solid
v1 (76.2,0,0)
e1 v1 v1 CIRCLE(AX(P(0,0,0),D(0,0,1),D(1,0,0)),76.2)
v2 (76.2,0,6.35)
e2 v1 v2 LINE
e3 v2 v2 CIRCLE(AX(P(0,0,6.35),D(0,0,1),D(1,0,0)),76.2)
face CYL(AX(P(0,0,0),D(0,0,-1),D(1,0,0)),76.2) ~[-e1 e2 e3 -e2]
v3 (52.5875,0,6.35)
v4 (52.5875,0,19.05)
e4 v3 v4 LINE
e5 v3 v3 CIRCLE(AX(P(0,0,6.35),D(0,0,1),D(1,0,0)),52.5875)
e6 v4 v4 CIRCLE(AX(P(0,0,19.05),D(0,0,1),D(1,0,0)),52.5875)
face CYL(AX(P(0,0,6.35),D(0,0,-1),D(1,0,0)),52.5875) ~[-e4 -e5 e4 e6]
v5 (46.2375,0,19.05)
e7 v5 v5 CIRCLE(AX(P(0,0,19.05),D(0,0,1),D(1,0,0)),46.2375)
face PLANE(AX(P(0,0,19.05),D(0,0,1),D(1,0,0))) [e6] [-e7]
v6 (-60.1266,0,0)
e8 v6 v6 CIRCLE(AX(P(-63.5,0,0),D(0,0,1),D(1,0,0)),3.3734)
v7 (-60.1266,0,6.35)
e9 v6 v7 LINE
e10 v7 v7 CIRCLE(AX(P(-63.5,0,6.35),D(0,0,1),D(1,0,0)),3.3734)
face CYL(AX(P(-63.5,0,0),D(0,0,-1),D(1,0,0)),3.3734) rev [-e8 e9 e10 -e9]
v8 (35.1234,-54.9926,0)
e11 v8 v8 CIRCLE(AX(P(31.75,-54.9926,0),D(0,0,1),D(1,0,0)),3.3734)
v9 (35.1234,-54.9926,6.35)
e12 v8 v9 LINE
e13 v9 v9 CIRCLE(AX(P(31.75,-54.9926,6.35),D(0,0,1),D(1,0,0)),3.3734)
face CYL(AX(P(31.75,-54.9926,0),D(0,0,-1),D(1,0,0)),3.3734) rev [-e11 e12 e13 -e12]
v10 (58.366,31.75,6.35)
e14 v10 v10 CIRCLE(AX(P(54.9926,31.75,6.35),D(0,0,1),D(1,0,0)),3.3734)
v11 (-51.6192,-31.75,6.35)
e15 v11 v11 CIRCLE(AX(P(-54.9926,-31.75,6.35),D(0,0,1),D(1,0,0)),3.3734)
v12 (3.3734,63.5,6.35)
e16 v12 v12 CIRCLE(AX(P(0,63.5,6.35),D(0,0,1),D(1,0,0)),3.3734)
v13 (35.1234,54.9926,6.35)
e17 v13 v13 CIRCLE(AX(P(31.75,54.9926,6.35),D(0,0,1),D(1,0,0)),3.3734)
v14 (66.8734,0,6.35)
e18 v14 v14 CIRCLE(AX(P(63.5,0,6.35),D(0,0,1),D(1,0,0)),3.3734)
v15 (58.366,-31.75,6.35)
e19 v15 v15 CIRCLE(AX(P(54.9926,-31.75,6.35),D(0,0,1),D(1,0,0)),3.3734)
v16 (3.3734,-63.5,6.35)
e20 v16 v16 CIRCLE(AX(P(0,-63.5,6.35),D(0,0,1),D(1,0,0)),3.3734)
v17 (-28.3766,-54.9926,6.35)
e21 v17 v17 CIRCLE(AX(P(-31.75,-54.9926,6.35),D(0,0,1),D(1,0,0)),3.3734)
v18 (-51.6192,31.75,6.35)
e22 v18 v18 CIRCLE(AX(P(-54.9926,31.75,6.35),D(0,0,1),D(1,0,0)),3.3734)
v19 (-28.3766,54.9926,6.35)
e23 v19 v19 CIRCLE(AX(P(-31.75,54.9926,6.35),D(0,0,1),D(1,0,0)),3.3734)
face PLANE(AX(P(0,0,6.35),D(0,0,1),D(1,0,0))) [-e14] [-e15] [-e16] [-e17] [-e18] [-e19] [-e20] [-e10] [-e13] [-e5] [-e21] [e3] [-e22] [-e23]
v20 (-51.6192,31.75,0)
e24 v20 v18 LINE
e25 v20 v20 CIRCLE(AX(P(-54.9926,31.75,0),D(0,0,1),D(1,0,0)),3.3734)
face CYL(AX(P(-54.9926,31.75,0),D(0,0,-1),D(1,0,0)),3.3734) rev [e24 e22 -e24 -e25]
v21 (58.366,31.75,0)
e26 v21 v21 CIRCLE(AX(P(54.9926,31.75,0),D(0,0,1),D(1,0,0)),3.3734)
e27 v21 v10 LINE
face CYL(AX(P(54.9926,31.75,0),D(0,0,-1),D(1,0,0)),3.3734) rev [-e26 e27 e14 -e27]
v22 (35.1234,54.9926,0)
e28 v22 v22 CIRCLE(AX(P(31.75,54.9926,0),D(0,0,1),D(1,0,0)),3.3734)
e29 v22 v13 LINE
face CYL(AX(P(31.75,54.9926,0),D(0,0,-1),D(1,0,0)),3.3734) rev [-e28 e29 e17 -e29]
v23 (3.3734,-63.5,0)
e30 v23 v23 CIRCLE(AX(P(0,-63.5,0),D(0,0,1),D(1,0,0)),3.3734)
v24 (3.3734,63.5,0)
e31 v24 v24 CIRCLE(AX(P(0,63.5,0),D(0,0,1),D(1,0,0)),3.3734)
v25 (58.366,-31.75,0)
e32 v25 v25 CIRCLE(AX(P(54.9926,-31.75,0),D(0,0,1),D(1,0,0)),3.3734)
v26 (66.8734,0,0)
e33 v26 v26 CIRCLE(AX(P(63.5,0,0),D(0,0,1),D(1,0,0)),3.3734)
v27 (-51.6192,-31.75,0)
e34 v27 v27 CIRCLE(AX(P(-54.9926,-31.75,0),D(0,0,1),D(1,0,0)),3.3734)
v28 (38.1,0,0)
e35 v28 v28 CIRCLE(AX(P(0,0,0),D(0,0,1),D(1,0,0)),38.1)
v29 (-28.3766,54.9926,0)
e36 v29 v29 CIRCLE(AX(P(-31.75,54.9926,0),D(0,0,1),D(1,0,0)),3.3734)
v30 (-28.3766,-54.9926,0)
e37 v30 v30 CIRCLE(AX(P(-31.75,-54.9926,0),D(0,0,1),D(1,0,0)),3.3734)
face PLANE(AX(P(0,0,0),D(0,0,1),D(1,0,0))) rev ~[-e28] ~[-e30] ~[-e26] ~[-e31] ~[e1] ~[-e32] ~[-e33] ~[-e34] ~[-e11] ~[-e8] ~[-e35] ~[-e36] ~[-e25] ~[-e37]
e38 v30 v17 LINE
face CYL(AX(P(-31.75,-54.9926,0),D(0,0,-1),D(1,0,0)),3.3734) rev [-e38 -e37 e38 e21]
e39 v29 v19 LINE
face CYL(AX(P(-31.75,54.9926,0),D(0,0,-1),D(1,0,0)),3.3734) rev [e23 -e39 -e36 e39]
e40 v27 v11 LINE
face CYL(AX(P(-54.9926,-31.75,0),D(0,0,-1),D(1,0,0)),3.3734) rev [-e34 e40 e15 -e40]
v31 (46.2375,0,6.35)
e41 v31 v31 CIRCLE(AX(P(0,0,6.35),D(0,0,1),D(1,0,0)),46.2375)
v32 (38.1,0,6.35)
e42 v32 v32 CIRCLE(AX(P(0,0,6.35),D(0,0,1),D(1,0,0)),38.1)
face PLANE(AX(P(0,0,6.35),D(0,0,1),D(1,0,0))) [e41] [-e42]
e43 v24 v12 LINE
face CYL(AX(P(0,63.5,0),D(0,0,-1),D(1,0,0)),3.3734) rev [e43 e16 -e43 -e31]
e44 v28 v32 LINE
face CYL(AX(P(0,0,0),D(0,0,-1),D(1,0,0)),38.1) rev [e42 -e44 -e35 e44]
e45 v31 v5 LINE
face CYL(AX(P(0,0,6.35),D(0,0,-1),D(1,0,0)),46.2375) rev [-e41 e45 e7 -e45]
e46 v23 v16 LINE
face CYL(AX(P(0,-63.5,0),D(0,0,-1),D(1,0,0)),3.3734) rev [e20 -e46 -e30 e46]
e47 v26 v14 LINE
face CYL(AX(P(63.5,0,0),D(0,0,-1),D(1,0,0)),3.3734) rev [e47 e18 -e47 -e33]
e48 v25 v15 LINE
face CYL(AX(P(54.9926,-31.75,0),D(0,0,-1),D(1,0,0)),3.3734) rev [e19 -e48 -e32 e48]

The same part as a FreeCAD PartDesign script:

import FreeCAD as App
import Part
import Sketcher
Q = App.Units.Quantity

doc = App.newDocument("Part")
body = doc.addObject("PartDesign::Body", "Body")

# Sketch on XY plane
sketch1 = doc.addObject("Sketcher::SketchObject", "Sketch")
body.addObject(sketch1)
sketch1.AttachmentSupport = (doc.XY_Plane, [""])
sketch1.MapMode = "FlatFace"
sketch1.addGeometry(Part.Circle(App.Vector(0, 0, 0), App.Vector(0, 0, 1), 76.2), False)
sketch1.addGeometry(Part.Circle(App.Vector(-31.75, -54.9926, 0), App.Vector(0, 0, 1), 3.3734), False)
sketch1.addGeometry(Part.Circle(App.Vector(-54.9926, -31.75, 0), App.Vector(0, 0, 1), 3.3734), False)
sketch1.addGeometry(Part.Circle(App.Vector(0, -63.5, 0), App.Vector(0, 0, 1), 3.3734), False)
sketch1.addGeometry(Part.Circle(App.Vector(31.75, -54.9926, 0), App.Vector(0, 0, 1), 3.3734), False)
sketch1.addGeometry(Part.Circle(App.Vector(54.9926, -31.75, 0), App.Vector(0, 0, 1), 3.3734), False)
sketch1.addGeometry(Part.Circle(App.Vector(-63.5, 0, 0), App.Vector(0, 0, 1), 3.3734), False)
sketch1.addGeometry(Part.Circle(App.Vector(-54.9926, 31.75, 0), App.Vector(0, 0, 1), 3.3734), False)
sketch1.addGeometry(Part.Circle(App.Vector(-31.75, 54.9926, 0), App.Vector(0, 0, 1), 3.3734), False)
sketch1.addGeometry(Part.Circle(App.Vector(0, 0, 0), App.Vector(0, 0, 1), 38.1), False)
sketch1.addGeometry(Part.Circle(App.Vector(63.5, 0, 0), App.Vector(0, 0, 1), 3.3734), False)
sketch1.addGeometry(Part.Circle(App.Vector(54.9926, 31.75, 0), App.Vector(0, 0, 1), 3.3734), False)
sketch1.addGeometry(Part.Circle(App.Vector(31.75, 54.9926, 0), App.Vector(0, 0, 1), 3.3734), False)
sketch1.addGeometry(Part.Circle(App.Vector(0, 63.5, 0), App.Vector(0, 0, 1), 3.3734), False)
sketch1.addConstraint(Sketcher.Constraint("Coincident", 0, 3, -1, 1))
sketch1.addConstraint(Sketcher.Constraint("Coincident", 9, 3, -1, 1))
sketch1.addConstraint(Sketcher.Constraint("Equal", 1, 2))
sketch1.addConstraint(Sketcher.Constraint("Equal", 2, 3))
sketch1.addConstraint(Sketcher.Constraint("Equal", 3, 4))
sketch1.addConstraint(Sketcher.Constraint("Equal", 4, 5))
sketch1.addConstraint(Sketcher.Constraint("Equal", 5, 6))
sketch1.addConstraint(Sketcher.Constraint("Equal", 6, 7))
sketch1.addConstraint(Sketcher.Constraint("Equal", 7, 8))
sketch1.addConstraint(Sketcher.Constraint("Equal", 8, 10))
sketch1.addConstraint(Sketcher.Constraint("Equal", 10, 11))
sketch1.addConstraint(Sketcher.Constraint("Equal", 11, 12))
sketch1.addConstraint(Sketcher.Constraint("Equal", 12, 13))
sketch1.addConstraint(Sketcher.Constraint("Symmetric", 5, 3, 7, 3, -1, 1))
sketch1.addConstraint(Sketcher.Constraint("Symmetric", 4, 3, 8, 3, -1, 1))
sketch1.addConstraint(Sketcher.Constraint("Symmetric", 6, 3, 10, 3, -1, 1))
sketch1.addConstraint(Sketcher.Constraint("Symmetric", 2, 3, 11, 3, -1, 1))
sketch1.addConstraint(Sketcher.Constraint("Symmetric", 1, 3, 12, 3, -1, 1))
sketch1.addConstraint(Sketcher.Constraint("Symmetric", 3, 3, 13, 3, -1, 1))
sketch1.addConstraint(Sketcher.Constraint("Symmetric", 1, 3, 4, 3, -2))
sketch1.addConstraint(Sketcher.Constraint("Symmetric", 2, 3, 5, 3, -2))
sketch1.addConstraint(Sketcher.Constraint("PointOnObject", 3, 3, -2))
sketch1.addConstraint(Sketcher.Constraint("PointOnObject", 6, 3, -1))
sketch1.addConstraint(Sketcher.Constraint("Diameter", 0, Q("6 in")))
sketch1.addConstraint(Sketcher.Constraint("Diameter", 9, Q("3 in")))
sketch1.addConstraint(Sketcher.Constraint("Diameter", 1, Q("0.265622 in")))
sketch1.addConstraint(Sketcher.Constraint("DistanceY", 3, 3, -1, 1, Q("2.5 in")))
sketch1.addConstraint(Sketcher.Constraint("DistanceX", 6, 3, -1, 1, Q("2.5 in")))
sketch1.addConstraint(Sketcher.Constraint("DistanceX", 1, 3, 4, 3, Q("2.5 in")))
sketch1.addConstraint(Sketcher.Constraint("DistanceY", 2, 3, 7, 3, Q("2.5 in")))
sketch1.addConstraint(Sketcher.Constraint("DistanceY", 1, 3, -1, 1, 54.9926))
sketch1.addConstraint(Sketcher.Constraint("DistanceX", 2, 3, -1, 1, 54.9926))
pad1 = doc.addObject("PartDesign::Pad", "Pad")
body.addObject(pad1)
pad1.Profile = sketch1
pad1.Length = Q("0.25 in")

# Sketch on XY plane
sketch2 = doc.addObject("Sketcher::SketchObject", "Sketch001")
body.addObject(sketch2)
sketch2.AttachmentSupport = (doc.XY_Plane, [""])
sketch2.MapMode = "FlatFace"
sketch2.AttachmentOffset = App.Placement(App.Vector(0, 0, 0.25 * 25.4), App.Rotation())
sketch2.addGeometry(Part.Circle(App.Vector(0, 0, 0), App.Vector(0, 0, 1), 52.5875), False)
sketch2.addGeometry(Part.Circle(App.Vector(0, 0, 0), App.Vector(0, 0, 1), 46.2375), False)
sketch2.addConstraint(Sketcher.Constraint("Coincident", 0, 3, -1, 1))
sketch2.addConstraint(Sketcher.Constraint("Coincident", 1, 3, -1, 1))
sketch2.addConstraint(Sketcher.Constraint("Diameter", 1, 92.475))
sketch2.addConstraint(Sketcher.Constraint("Diameter", 0, 105.175))
pad2 = doc.addObject("PartDesign::Pad", "Pad001")
body.addObject(pad2)
pad2.Profile = sketch2
pad2.Length = Q("0.5 in")

doc.recompute()
